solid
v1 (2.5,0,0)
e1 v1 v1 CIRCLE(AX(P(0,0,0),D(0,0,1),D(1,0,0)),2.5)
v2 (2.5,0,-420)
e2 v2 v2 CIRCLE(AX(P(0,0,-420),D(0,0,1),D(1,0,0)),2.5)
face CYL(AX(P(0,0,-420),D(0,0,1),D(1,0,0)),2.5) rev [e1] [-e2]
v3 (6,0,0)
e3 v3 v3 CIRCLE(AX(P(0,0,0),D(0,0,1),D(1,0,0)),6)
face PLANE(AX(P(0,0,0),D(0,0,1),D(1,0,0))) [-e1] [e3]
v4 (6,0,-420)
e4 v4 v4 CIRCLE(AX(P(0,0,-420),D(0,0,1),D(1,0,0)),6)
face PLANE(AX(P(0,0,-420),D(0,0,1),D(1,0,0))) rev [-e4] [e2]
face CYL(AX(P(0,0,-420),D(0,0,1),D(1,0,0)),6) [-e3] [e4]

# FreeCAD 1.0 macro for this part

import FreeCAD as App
import Part
import Sketcher

V = App.Vector

doc = App.newDocument("Part")
body = doc.addObject("PartDesign::Body", "Body")

# Sketch on XY plane
sketch1 = doc.addObject("Sketcher::SketchObject", "Sketch")
body.addObject(sketch1)
sketch1.AttachmentSupport = (doc.XY_Plane, [""])
sketch1.MapMode = "FlatFace"
sketch1.addGeometry([
    Part.Circle(V(0, 0, 0), V(0, 0, 1), 6),
    Part.Circle(V(0, 0, 0), V(0, 0, 1), 0.0005),
], False)
sketch1.addConstraint([
    Sketcher.Constraint("Coincident", 0, 3, -1, 1),
    Sketcher.Constraint("Coincident", 1, 3, -1, 1),
    Sketcher.Constraint("Diameter", 0, 12.0),
    Sketcher.Constraint("Diameter", 1, 0.001),
])
pad1 = doc.addObject("PartDesign::Pad", "Pad")
body.addObject(pad1)
pad1.Profile = sketch1
pad1.Length = 420
pad1.Reversed = True

# Sketch on XY plane
sketch2 = doc.addObject("Sketcher::SketchObject", "Sketch001")
body.addObject(sketch2)
sketch2.AttachmentSupport = (doc.XY_Plane, [""])
sketch2.MapMode = "FlatFace"
sketch2.addGeometry(Part.Circle(V(0, 0, 0), V(0, 0, 1), 2.5), False)
sketch2.addConstraint([
    Sketcher.Constraint("Coincident", 0, 3, -1, 1),
    Sketcher.Constraint("Diameter", 0, 5.0),
])
pocket1 = doc.addObject("PartDesign::Pocket", "Pocket")
body.addObject(pocket1)
pocket1.Profile = sketch2
pocket1.Type = "ThroughAll"

doc.recompute()
